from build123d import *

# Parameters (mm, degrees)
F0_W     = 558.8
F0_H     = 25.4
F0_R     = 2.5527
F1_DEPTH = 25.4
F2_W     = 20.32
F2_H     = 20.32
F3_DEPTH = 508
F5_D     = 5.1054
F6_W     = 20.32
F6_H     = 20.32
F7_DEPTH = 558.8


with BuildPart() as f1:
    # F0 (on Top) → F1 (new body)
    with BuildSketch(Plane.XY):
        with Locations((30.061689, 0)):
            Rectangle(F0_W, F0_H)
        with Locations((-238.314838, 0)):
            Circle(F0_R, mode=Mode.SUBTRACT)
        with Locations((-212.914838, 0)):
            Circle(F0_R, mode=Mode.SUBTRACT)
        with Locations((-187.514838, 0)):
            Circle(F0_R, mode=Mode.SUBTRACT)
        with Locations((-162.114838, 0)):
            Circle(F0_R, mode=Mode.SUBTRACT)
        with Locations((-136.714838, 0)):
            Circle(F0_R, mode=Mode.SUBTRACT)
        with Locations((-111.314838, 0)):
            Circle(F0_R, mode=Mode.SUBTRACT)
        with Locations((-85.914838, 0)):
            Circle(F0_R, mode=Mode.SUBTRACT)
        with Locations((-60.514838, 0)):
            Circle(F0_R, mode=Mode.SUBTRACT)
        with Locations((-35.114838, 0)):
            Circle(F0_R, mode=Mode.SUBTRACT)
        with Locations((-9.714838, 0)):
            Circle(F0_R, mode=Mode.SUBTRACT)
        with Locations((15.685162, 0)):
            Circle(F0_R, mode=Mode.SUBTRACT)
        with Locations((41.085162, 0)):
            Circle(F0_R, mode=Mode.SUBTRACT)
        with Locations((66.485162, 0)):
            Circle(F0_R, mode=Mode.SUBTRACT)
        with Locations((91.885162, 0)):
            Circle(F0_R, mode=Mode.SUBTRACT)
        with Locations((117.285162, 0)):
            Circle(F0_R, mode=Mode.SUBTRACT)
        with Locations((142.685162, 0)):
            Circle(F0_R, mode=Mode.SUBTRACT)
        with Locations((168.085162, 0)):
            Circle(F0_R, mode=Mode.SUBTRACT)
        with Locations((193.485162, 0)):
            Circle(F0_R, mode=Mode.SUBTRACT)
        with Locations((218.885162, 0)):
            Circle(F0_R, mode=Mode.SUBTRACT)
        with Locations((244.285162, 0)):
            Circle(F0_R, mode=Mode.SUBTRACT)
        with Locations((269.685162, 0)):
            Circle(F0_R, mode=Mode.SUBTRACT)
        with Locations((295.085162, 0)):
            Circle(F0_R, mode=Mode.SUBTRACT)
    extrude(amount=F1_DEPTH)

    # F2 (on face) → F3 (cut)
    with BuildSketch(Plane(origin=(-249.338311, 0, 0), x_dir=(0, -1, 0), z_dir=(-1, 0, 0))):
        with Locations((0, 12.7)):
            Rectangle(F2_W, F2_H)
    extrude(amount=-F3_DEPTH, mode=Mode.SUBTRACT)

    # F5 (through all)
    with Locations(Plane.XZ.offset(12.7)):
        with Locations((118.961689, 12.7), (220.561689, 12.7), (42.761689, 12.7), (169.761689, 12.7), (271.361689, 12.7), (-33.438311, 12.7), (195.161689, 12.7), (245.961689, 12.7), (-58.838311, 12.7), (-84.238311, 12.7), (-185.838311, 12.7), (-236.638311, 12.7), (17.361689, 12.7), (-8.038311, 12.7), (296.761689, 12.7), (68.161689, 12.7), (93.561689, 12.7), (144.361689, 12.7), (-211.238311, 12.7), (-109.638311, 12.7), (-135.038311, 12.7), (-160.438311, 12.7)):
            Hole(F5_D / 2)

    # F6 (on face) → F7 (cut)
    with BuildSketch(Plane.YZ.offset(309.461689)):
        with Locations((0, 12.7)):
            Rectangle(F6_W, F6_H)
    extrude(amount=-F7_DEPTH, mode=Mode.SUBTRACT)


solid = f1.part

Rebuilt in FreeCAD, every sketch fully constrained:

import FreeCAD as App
import Part
import Sketcher
from FreeCAD import Vector
Q = App.Units.Quantity


def add_polygon(sketch, points):
    """Adds a closed chain of lines whose ends are joined by coincident constraints."""
    first, n = sketch.GeometryCount, len(points)
    for a, b in zip(points, points[1:] + points[:1]):
        sketch.addGeometry(Part.LineSegment(App.Vector(*a, 0), App.Vector(*b, 0)), False)
    for i in range(n):
        sketch.addConstraint(Sketcher.Constraint("Coincident", first + i, 2, first + (i + 1) % n, 1))

doc = App.newDocument("Part")
body = doc.addObject("PartDesign::Body", "Body")

sketch1 = body.newObject("Sketcher::SketchObject", "Sketch")
sketch1.AttachmentSupport = (doc.getObject("XY_Plane"), [""])
sketch1.MapMode = "FlatFace"
add_polygon(sketch1, [(-249.338311, 12.7), (-249.338311, -12.7), (309.461689, -12.7), (309.461689, 12.7)])
sketch1.addGeometry(Part.Circle(Vector(-238.314838, 0, 0), Vector(0, 0, 1), 2.5527), False)
sketch1.addGeometry(Part.Circle(Vector(-212.914838, 0, 0), Vector(0, 0, 1), 2.5527), False)
sketch1.addGeometry(Part.Circle(Vector(-187.514838, 0, 0), Vector(0, 0, 1), 2.5527), False)
sketch1.addGeometry(Part.Circle(Vector(-162.114838, 0, 0), Vector(0, 0, 1), 2.5527), False)
sketch1.addGeometry(Part.Circle(Vector(-136.714838, 0, 0), Vector(0, 0, 1), 2.5527), False)
sketch1.addGeometry(Part.Circle(Vector(-111.314838, 0, 0), Vector(0, 0, 1), 2.5527), False)
sketch1.addGeometry(Part.Circle(Vector(-85.914838, 0, 0), Vector(0, 0, 1), 2.5527), False)
sketch1.addGeometry(Part.Circle(Vector(-60.514838, 0, 0), Vector(0, 0, 1), 2.5527), False)
sketch1.addGeometry(Part.Circle(Vector(-35.114838, 0, 0), Vector(0, 0, 1), 2.5527), False)
sketch1.addGeometry(Part.Circle(Vector(-9.714838, 0, 0), Vector(0, 0, 1), 2.5527), False)
sketch1.addGeometry(Part.Circle(Vector(15.685162, 0, 0), Vector(0, 0, 1), 2.5527), False)
sketch1.addGeometry(Part.Circle(Vector(41.085162, 0, 0), Vector(0, 0, 1), 2.5527), False)
sketch1.addGeometry(Part.Circle(Vector(66.485162, 0, 0), Vector(0, 0, 1), 2.5527), False)
sketch1.addGeometry(Part.Circle(Vector(91.885162, 0, 0), Vector(0, 0, 1), 2.5527), False)
sketch1.addGeometry(Part.Circle(Vector(117.285162, 0, 0), Vector(0, 0, 1), 2.5527), False)
sketch1.addGeometry(Part.Circle(Vector(142.685162, 0, 0), Vector(0, 0, 1), 2.5527), False)
sketch1.addGeometry(Part.Circle(Vector(168.085162, 0, 0), Vector(0, 0, 1), 2.5527), False)
sketch1.addGeometry(Part.Circle(Vector(193.485162, 0, 0), Vector(0, 0, 1), 2.5527), False)
sketch1.addGeometry(Part.Circle(Vector(218.885162, 0, 0), Vector(0, 0, 1), 2.5527), False)
sketch1.addGeometry(Part.Circle(Vector(244.285162, 0, 0), Vector(0, 0, 1), 2.5527), False)
sketch1.addGeometry(Part.Circle(Vector(269.685162, 0, 0), Vector(0, 0, 1), 2.5527), False)
sketch1.addGeometry(Part.Circle(Vector(295.085162, 0, 0), Vector(0, 0, 1), 2.5527), False)
sketch1.addConstraint([
    Sketcher.Constraint("Vertical", 0),
    Sketcher.Constraint("Horizontal", 1),
    Sketcher.Constraint("Vertical", 2),
    Sketcher.Constraint("Horizontal", 3),
    Sketcher.Constraint("Equal", 4, 5),
    Sketcher.Constraint("Equal", 5, 6),
    Sketcher.Constraint("Equal", 6, 7),
    Sketcher.Constraint("Equal", 7, 8),
    Sketcher.Constraint("Equal", 8, 9),
    Sketcher.Constraint("Equal", 9, 10),
    Sketcher.Constraint("Equal", 10, 11),
    Sketcher.Constraint("Equal", 11, 12),
    Sketcher.Constraint("Equal", 12, 13),
    Sketcher.Constraint("Equal", 13, 14),
    Sketcher.Constraint("Equal", 14, 15),
    Sketcher.Constraint("Equal", 15, 16),
    Sketcher.Constraint("Equal", 16, 17),
    Sketcher.Constraint("Equal", 17, 18),
    Sketcher.Constraint("Equal", 18, 19),
    Sketcher.Constraint("Equal", 19, 20),
    Sketcher.Constraint("Equal", 20, 21),
    Sketcher.Constraint("Equal", 21, 22),
    Sketcher.Constraint("Equal", 22, 23),
    Sketcher.Constraint("Equal", 23, 24),
    Sketcher.Constraint("Equal", 24, 25),
    Sketcher.Constraint("PointOnObject", 4, 3, -1),
    Sketcher.Constraint("PointOnObject", 5, 3, -1),
    Sketcher.Constraint("PointOnObject", 6, 3, -1),
    Sketcher.Constraint("PointOnObject", 7, 3, -1),
    Sketcher.Constraint("PointOnObject", 8, 3, -1),
    Sketcher.Constraint("PointOnObject", 9, 3, -1),
    Sketcher.Constraint("PointOnObject", 10, 3, -1),
    Sketcher.Constraint("PointOnObject", 11, 3, -1),
    Sketcher.Constraint("PointOnObject", 12, 3, -1),
    Sketcher.Constraint("PointOnObject", 13, 3, -1),
    Sketcher.Constraint("PointOnObject", 14, 3, -1),
    Sketcher.Constraint("PointOnObject", 15, 3, -1),
    Sketcher.Constraint("PointOnObject", 16, 3, -1),
    Sketcher.Constraint("PointOnObject", 17, 3, -1),
    Sketcher.Constraint("PointOnObject", 18, 3, -1),
    Sketcher.Constraint("PointOnObject", 19, 3, -1),
    Sketcher.Constraint("PointOnObject", 20, 3, -1),
    Sketcher.Constraint("PointOnObject", 21, 3, -1),
    Sketcher.Constraint("PointOnObject", 22, 3, -1),
    Sketcher.Constraint("PointOnObject", 23, 3, -1),
    Sketcher.Constraint("PointOnObject", 24, 3, -1),
    Sketcher.Constraint("PointOnObject", 25, 3, -1),
    Sketcher.Constraint("DistanceX", 1, 1, 1, 2, Q("22 in")),
    Sketcher.Constraint("DistanceY", 0, 2, 0, 1, Q("1 in")),
    Sketcher.Constraint("Diameter", 4, Q("0.201 in")),
    Sketcher.Constraint("DistanceX", 4, 3, 5, 3, Q("1 in")),
    Sketcher.Constraint("DistanceX", 5, 3, 6, 3, Q("1 in")),
    Sketcher.Constraint("DistanceX", 6, 3, 7, 3, Q("1 in")),
    Sketcher.Constraint("DistanceX", 7, 3, 8, 3, Q("1 in")),
    Sketcher.Constraint("DistanceX", 8, 3, 9, 3, Q("1 in")),
    Sketcher.Constraint("DistanceX", 9, 3, 10, 3, Q("1 in")),
    Sketcher.Constraint("DistanceX", 10, 3, 11, 3, Q("1 in")),
    Sketcher.Constraint("DistanceX", 11, 3, 12, 3, Q("1 in")),
    Sketcher.Constraint("DistanceX", 12, 3, 13, 3, Q("1 in")),
    Sketcher.Constraint("DistanceX", 13, 3, 14, 3, Q("1 in")),
    Sketcher.Constraint("DistanceX", 14, 3, 15, 3, Q("1 in")),
    Sketcher.Constraint("DistanceX", 15, 3, 16, 3, Q("1 in")),
    Sketcher.Constraint("DistanceX", 16, 3, 17, 3, Q("1 in")),
    Sketcher.Constraint("DistanceX", 17, 3, 18, 3, Q("1 in")),
    Sketcher.Constraint("DistanceX", 18, 3, 19, 3, Q("1 in")),
    Sketcher.Constraint("DistanceX", 19, 3, 20, 3, Q("1 in")),
    Sketcher.Constraint("DistanceX", 20, 3, 21, 3, Q("1 in")),
    Sketcher.Constraint("DistanceX", 21, 3, 22, 3, Q("1 in")),
    Sketcher.Constraint("DistanceX", 22, 3, 23, 3, Q("1 in")),
    Sketcher.Constraint("DistanceX", 23, 3, 24, 3, Q("1 in")),
    Sketcher.Constraint("DistanceX", 24, 3, 25, 3, Q("1 in")),
    Sketcher.Constraint("DistanceY", 0, 2, -1, 1, Q("0.5 in")),
    Sketcher.Constraint("DistanceX", 4, 3, -1, 1, 238.314838),
    Sketcher.Constraint("DistanceX", 0, 2, -1, 1, 249.338311),
])
pad1 = body.newObject("PartDesign::Pad", "Pad")
pad1.Profile = sketch1
pad1.Length = Q("1 in")

sketch2 = body.newObject("Sketcher::SketchObject", "Sketch001")
sketch2.AttachmentSupport = (doc.getObject("YZ_Plane"), [""])
sketch2.MapMode = "FlatFace"
sketch2.AttachmentOffset = App.Placement(Vector(0, 0, -249.338311), App.Rotation())
add_polygon(sketch2, [(10.16, 22.86), (10.16, 2.54), (-10.16, 2.54), (-10.16, 22.86)])
sketch2.addConstraint([
    Sketcher.Constraint("Vertical", 0),
    Sketcher.Constraint("Horizontal", 1),
    Sketcher.Constraint("Vertical", 2),
    Sketcher.Constraint("Horizontal", 3),
    Sketcher.Constraint("Equal", 3, 0),
    Sketcher.Constraint("DistanceX", 1, 2, 1, 1, Q("0.8 in")),
    Sketcher.Constraint("DistanceX", -1, 1, 0, 2, Q("0.4 in")),
    Sketcher.Constraint("DistanceY", -1, 1, 0, 2, Q("0.1 in")),
])
pocket1 = body.newObject("PartDesign::Pocket", "Pocket")
pocket1.Profile = sketch2
pocket1.Length = Q("20 in")
pocket1.Reversed = True

sketch3 = body.newObject("Sketcher::SketchObject", "Sketch002")
sketch3.AttachmentSupport = (doc.getObject("XZ_Plane"), [""])
sketch3.MapMode = "FlatFace"
sketch3.AttachmentOffset = App.Placement(Vector(0, 0, 0.5 * 25.4), App.Rotation())
sketch3.addGeometry([
    Part.Circle(Vector(118.961689, 12.7, 0), Vector(0, 0, 1), 2.5527),
    Part.Circle(Vector(220.561689, 12.7, 0), Vector(0, 0, 1), 2.5527),
    Part.Circle(Vector(42.761689, 12.7, 0), Vector(0, 0, 1), 2.5527),
    Part.Circle(Vector(169.761689, 12.7, 0), Vector(0, 0, 1), 2.5527),
    Part.Circle(Vector(271.361689, 12.7, 0), Vector(0, 0, 1), 2.5527),
    Part.Circle(Vector(-33.438311, 12.7, 0), Vector(0, 0, 1), 2.5527),
    Part.Circle(Vector(195.161689, 12.7, 0), Vector(0, 0, 1), 2.5527),
    Part.Circle(Vector(245.961689, 12.7, 0), Vector(0, 0, 1), 2.5527),
    Part.Circle(Vector(-58.838311, 12.7, 0), Vector(0, 0, 1), 2.5527),
    Part.Circle(Vector(-84.238311, 12.7, 0), Vector(0, 0, 1), 2.5527),
    Part.Circle(Vector(-185.838311, 12.7, 0), Vector(0, 0, 1), 2.5527),
    Part.Circle(Vector(-236.638311, 12.7, 0), Vector(0, 0, 1), 2.5527),
    Part.Circle(Vector(17.361689, 12.7, 0), Vector(0, 0, 1), 2.5527),
    Part.Circle(Vector(-8.038311, 12.7, 0), Vector(0, 0, 1), 2.5527),
    Part.Circle(Vector(296.761689, 12.7, 0), Vector(0, 0, 1), 2.5527),
    Part.Circle(Vector(68.161689, 12.7, 0), Vector(0, 0, 1), 2.5527),
    Part.Circle(Vector(93.561689, 12.7, 0), Vector(0, 0, 1), 2.5527),
    Part.Circle(Vector(144.361689, 12.7, 0), Vector(0, 0, 1), 2.5527),
    Part.Circle(Vector(-211.238311, 12.7, 0), Vector(0, 0, 1), 2.5527),
    Part.Circle(Vector(-109.638311, 12.7, 0), Vector(0, 0, 1), 2.5527),
    Part.Circle(Vector(-135.038311, 12.7, 0), Vector(0, 0, 1), 2.5527),
    Part.Circle(Vector(-160.438311, 12.7, 0), Vector(0, 0, 1), 2.5527),
], False)
sketch3.addConstraint([
    Sketcher.Constraint("Equal", 0, 1),
    Sketcher.Constraint("Equal", 1, 2),
    Sketcher.Constraint("Equal", 2, 3),
    Sketcher.Constraint("Equal", 3, 4),
    Sketcher.Constraint("Equal", 4, 5),
    Sketcher.Constraint("Equal", 5, 6),
    Sketcher.Constraint("Equal", 6, 7),
    Sketcher.Constraint("Equal", 7, 8),
    Sketcher.Constraint("Equal", 8, 9),
    Sketcher.Constraint("Equal", 9, 10),
    Sketcher.Constraint("Equal", 10, 11),
    Sketcher.Constraint("Equal", 11, 12),
    Sketcher.Constraint("Equal", 12, 13),
    Sketcher.Constraint("Equal", 13, 14),
    Sketcher.Constraint("Equal", 14, 15),
    Sketcher.Constraint("Equal", 15, 16),
    Sketcher.Constraint("Equal", 16, 17),
    Sketcher.Constraint("Equal", 17, 18),
    Sketcher.Constraint("Equal", 18, 19),
    Sketcher.Constraint("Equal", 19, 20),
    Sketcher.Constraint("Equal", 20, 21),
    Sketcher.Constraint("Horizontal", 0, 3, 1, 3),
    Sketcher.Constraint("Horizontal", 1, 3, 2, 3),
    Sketcher.Constraint("Horizontal", 2, 3, 3, 3),
    Sketcher.Constraint("Horizontal", 3, 3, 4, 3),
    Sketcher.Constraint("Horizontal", 4, 3, 5, 3),
    Sketcher.Constraint("Horizontal", 5, 3, 6, 3),
    Sketcher.Constraint("Horizontal", 6, 3, 7, 3),
    Sketcher.Constraint("Horizontal", 7, 3, 8, 3),
    Sketcher.Constraint("Horizontal", 8, 3, 9, 3),
    Sketcher.Constraint("Horizontal", 9, 3, 10, 3),
    Sketcher.Constraint("Horizontal", 10, 3, 11, 3),
    Sketcher.Constraint("Horizontal", 11, 3, 12, 3),
    Sketcher.Constraint("Horizontal", 12, 3, 13, 3),
    Sketcher.Constraint("Horizontal", 13, 3, 14, 3),
    Sketcher.Constraint("Horizontal", 14, 3, 15, 3),
    Sketcher.Constraint("Horizontal", 15, 3, 16, 3),
    Sketcher.Constraint("Horizontal", 16, 3, 17, 3),
    Sketcher.Constraint("Horizontal", 17, 3, 18, 3),
    Sketcher.Constraint("Horizontal", 18, 3, 19, 3),
    Sketcher.Constraint("Horizontal", 19, 3, 20, 3),
    Sketcher.Constraint("Horizontal", 20, 3, 21, 3),
    Sketcher.Constraint("Diameter", 0, Q("0.201 in")),
    Sketcher.Constraint("DistanceX", 0, 3, 1, 3, Q("4 in")),
    Sketcher.Constraint("DistanceX", 2, 3, 0, 3, Q("3 in")),
    Sketcher.Constraint("DistanceX", 0, 3, 3, 3, Q("2 in")),
    Sketcher.Constraint("DistanceX", 1, 3, 4, 3, Q("2 in")),
    Sketcher.Constraint("DistanceX", 5, 3, 2, 3, Q("3 in")),
    Sketcher.Constraint("DistanceX", 6, 3, 1, 3, Q("1 in")),
    Sketcher.Constraint("DistanceX", 1, 3, 7, 3, Q("1 in")),
    Sketcher.Constraint("DistanceX", 8, 3, 5, 3, Q("1 in")),
    Sketcher.Constraint("DistanceX", 9, 3, 8, 3, Q("1 in")),
    Sketcher.Constraint("DistanceX", 10, 3, 9, 3, Q("4 in")),
    Sketcher.Constraint("DistanceX", 11, 3, 10, 3, Q("2 in")),
    Sketcher.Constraint("DistanceX", 12, 3, 2, 3, Q("1 in")),
    Sketcher.Constraint("DistanceX", 5, 3, 13, 3, Q("1 in")),
    Sketcher.Constraint("DistanceX", 4, 3, 14, 3, Q("1 in")),
    Sketcher.Constraint("DistanceX", 2, 3, 15, 3, Q("1 in")),
    Sketcher.Constraint("DistanceX", 16, 3, 0, 3, Q("1 in")),
    Sketcher.Constraint("DistanceX", 17, 3, 3, 3, Q("1 in")),
    Sketcher.Constraint("DistanceX", 11, 3, 18, 3, Q("1 in")),
    Sketcher.Constraint("DistanceX", 19, 3, 9, 3, Q("1 in")),
    Sketcher.Constraint("DistanceX", 20, 3, 19, 3, Q("1 in")),
    Sketcher.Constraint("DistanceX", 10, 3, 21, 3, Q("1 in")),
    Sketcher.Constraint("DistanceY", -1, 1, 0, 3, Q("0.5 in")),
    Sketcher.Constraint("DistanceX", -1, 1, 0, 3, 118.961689),
])
doc.recompute()
hole = body.newObject("PartDesign::Hole", "Hole")
hole.Profile = sketch3
hole.ThreadType = "None"
hole.Diameter = Q("0.201 in")
hole.DepthType = "ThroughAll"

sketch4 = body.newObject("Sketcher::SketchObject", "Sketch003")
sketch4.AttachmentSupport = (doc.getObject("YZ_Plane"), [""])
sketch4.MapMode = "FlatFace"
sketch4.AttachmentOffset = App.Placement(Vector(0, 0, 309.461689), App.Rotation())
add_polygon(sketch4, [(-10.16, 22.86), (-10.16, 2.54), (10.16, 2.54), (10.16, 22.86)])
sketch4.addConstraint([
    Sketcher.Constraint("Vertical", 0),
    Sketcher.Constraint("Horizontal", 1),
    Sketcher.Constraint("Vertical", 2),
    Sketcher.Constraint("Horizontal", 3),
    Sketcher.Constraint("Equal", 3, 0),
    Sketcher.Constraint("DistanceX", 1, 1, 1, 2, Q("0.8 in")),
    Sketcher.Constraint("DistanceX", 0, 2, -1, 1, Q("0.4 in")),
    Sketcher.Constraint("DistanceY", -1, 1, 0, 2, Q("0.1 in")),
])
pocket2 = body.newObject("PartDesign::Pocket", "Pocket001")
pocket2.Profile = sketch4
pocket2.Length = Q("22 in")

doc.recompute()
